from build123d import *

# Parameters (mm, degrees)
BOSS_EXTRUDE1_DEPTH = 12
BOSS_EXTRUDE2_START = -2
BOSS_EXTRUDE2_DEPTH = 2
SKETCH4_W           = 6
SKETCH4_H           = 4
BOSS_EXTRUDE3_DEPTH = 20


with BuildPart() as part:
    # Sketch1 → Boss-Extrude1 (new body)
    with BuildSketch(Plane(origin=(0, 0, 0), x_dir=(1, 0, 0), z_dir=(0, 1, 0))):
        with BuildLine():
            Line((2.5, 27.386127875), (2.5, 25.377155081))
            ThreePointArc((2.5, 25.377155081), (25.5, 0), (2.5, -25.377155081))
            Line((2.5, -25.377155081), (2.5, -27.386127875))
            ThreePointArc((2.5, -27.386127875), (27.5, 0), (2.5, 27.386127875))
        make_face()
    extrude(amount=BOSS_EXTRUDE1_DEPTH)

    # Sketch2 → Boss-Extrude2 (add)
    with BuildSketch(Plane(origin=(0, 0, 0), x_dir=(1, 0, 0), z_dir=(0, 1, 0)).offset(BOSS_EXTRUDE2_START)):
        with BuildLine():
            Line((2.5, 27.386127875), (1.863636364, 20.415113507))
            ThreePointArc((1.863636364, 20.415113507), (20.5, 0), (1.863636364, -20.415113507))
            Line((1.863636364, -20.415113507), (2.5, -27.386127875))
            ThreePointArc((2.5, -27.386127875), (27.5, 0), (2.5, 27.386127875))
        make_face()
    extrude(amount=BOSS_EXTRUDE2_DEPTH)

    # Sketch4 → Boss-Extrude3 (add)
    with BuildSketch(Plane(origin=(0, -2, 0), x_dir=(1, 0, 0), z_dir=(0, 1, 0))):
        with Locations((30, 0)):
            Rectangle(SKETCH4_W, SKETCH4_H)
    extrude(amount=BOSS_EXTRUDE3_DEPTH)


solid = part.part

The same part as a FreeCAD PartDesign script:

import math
import FreeCAD as App
import Part
import Sketcher

doc = App.newDocument("Part")
body = doc.addObject("PartDesign::Body", "Body")

# Sketch on XZ plane
sketch1 = body.newObject("Sketcher::SketchObject", "Sketch")
sketch1.AttachmentSupport = (doc.getObject("XZ_Plane"), [""])
sketch1.MapMode = "FlatFace"
sketch1.addGeometry(Part.LineSegment(App.Vector(2.5, -27.4, 0), App.Vector(2.5, -25.4, 0)), False)
sketch1.addGeometry(Part.ArcOfCircle(Part.Circle(App.Vector(0, 0, 0), App.Vector(0, 0, 1), 25.5), math.radians(-84), math.radians(84)), False)
sketch1.addGeometry(Part.LineSegment(App.Vector(2.5, 25.4, 0), App.Vector(2.5, 27.4, 0)), False)
sketch1.addGeometry(Part.ArcOfCircle(Part.Circle(App.Vector(0, 0, 0), App.Vector(0, 0, 1), 27.5), math.radians(-85), math.radians(85)), False)
sketch1.addConstraint(Sketcher.Constraint("Coincident", 0, 2, 1, 1))
sketch1.addConstraint(Sketcher.Constraint("Coincident", 1, 2, 2, 1))
sketch1.addConstraint(Sketcher.Constraint("Coincident", 2, 2, 3, 2))
sketch1.addConstraint(Sketcher.Constraint("Coincident", 3, 1, 0, 1))
sketch1.addConstraint(Sketcher.Constraint("Vertical", 0))
sketch1.addConstraint(Sketcher.Constraint("Vertical", 2))
sketch1.addConstraint(Sketcher.Constraint("Coincident", 1, 3, -1, 1))
sketch1.addConstraint(Sketcher.Constraint("Coincident", 3, 3, -1, 1))
sketch1.addConstraint(Sketcher.Constraint("Vertical", 0, 2, 1, 2))
sketch1.addConstraint(Sketcher.Constraint("Radius", 1, 25.5))
sketch1.addConstraint(Sketcher.Constraint("Radius", 3, 27.5))
sketch1.addConstraint(Sketcher.Constraint("DistanceX", -1, 1, 0, 2, 2.5))
pad1 = body.newObject("PartDesign::Pad", "Pad")
pad1.Profile = sketch1
pad1.Length = 12
pad1.Reversed = True

# Sketch on XZ plane
sketch2 = body.newObject("Sketcher::SketchObject", "Sketch001")
sketch2.AttachmentSupport = (doc.getObject("XZ_Plane"), [""])
sketch2.MapMode = "FlatFace"
sketch2.AttachmentOffset = App.Placement(App.Vector(0, 0, 2), App.Rotation())
sketch2.addGeometry(Part.LineSegment(App.Vector(2, -27, 0), App.Vector(2, -20, 0)), False)
sketch2.addGeometry(Part.ArcOfCircle(Part.Circle(App.Vector(0, 0, 0), App.Vector(0, 0, 1), 20), math.radians(-85), math.radians(85)), False)
sketch2.addGeometry(Part.LineSegment(App.Vector(2, 20, 0), App.Vector(2, 27, 0)), False)
sketch2.addGeometry(Part.ArcOfCircle(Part.Circle(App.Vector(0, 0, 0), App.Vector(0, 0, 1), 28), math.radians(-85), math.radians(85)), False)
sketch2.addConstraint(Sketcher.Constraint("Coincident", 0, 2, 1, 1))
sketch2.addConstraint(Sketcher.Constraint("Coincident", 1, 2, 2, 1))
sketch2.addConstraint(Sketcher.Constraint("Coincident", 2, 2, 3, 2))
sketch2.addConstraint(Sketcher.Constraint("Coincident", 3, 1, 0, 1))
sketch2.addConstraint(Sketcher.Constraint("Coincident", 1, 3, -1, 1))
sketch2.addConstraint(Sketcher.Constraint("Coincident", 3, 3, -1, 1))
sketch2.addConstraint(Sketcher.Constraint("Vertical", 0, 2, 1, 2))
sketch2.addConstraint(Sketcher.Constraint("Vertical", 2, 2, 3, 1))
sketch2.addConstraint(Sketcher.Constraint("Radius", 1, 20.5))
sketch2.addConstraint(Sketcher.Constraint("Radius", 3, 27.5))
sketch2.addConstraint(Sketcher.Constraint("DistanceX", -1, 1, 2, 2, 2.5))
sketch2.addConstraint(Sketcher.Constraint("DistanceY", 0, 2, 2, 2, 47.801241))
pad2 = body.newObject("PartDesign::Pad", "Pad001")
pad2.Profile = sketch2
pad2.Length = 2
pad2.Reversed = True

# Sketch on XZ plane
sketch3 = body.newObject("Sketcher::SketchObject", "Sketch002")
sketch3.AttachmentSupport = (doc.getObject("XZ_Plane"), [""])
sketch3.MapMode = "FlatFace"
sketch3.AttachmentOffset = App.Placement(App.Vector(0, 0, 2), App.Rotation())
sketch3.addGeometry(Part.LineSegment(App.Vector(27, -2, 0), App.Vector(27, 2, 0)), False)
sketch3.addGeometry(Part.LineSegment(App.Vector(27, 2, 0), App.Vector(33, 2, 0)), False)
sketch3.addGeometry(Part.LineSegment(App.Vector(33, 2, 0), App.Vector(33, -2, 0)), False)
sketch3.addGeometry(Part.LineSegment(App.Vector(33, -2, 0), App.Vector(27, -2, 0)), False)
sketch3.addConstraint(Sketcher.Constraint("Coincident", 0, 2, 1, 1))
sketch3.addConstraint(Sketcher.Constraint("Coincident", 1, 2, 2, 1))
sketch3.addConstraint(Sketcher.Constraint("Coincident", 2, 2, 3, 1))
sketch3.addConstraint(Sketcher.Constraint("Coincident", 3, 2, 0, 1))
sketch3.addConstraint(Sketcher.Constraint("Vertical", 0))
sketch3.addConstraint(Sketcher.Constraint("Horizontal", 1))
sketch3.addConstraint(Sketcher.Constraint("Vertical", 2))
sketch3.addConstraint(Sketcher.Constraint("Horizontal", 3))
sketch3.addConstraint(Sketcher.Constraint("DistanceX", 1, 1, 1, 2, 6.0))
sketch3.addConstraint(Sketcher.Constraint("DistanceY", 0, 1, 0, 2, 4.0))
sketch3.addConstraint(Sketcher.Constraint("DistanceX", -1, 1, 0, 2, 27.0))
sketch3.addConstraint(Sketcher.Constraint("DistanceY", -1, 1, 0, 2, 2.0))
pad3 = body.newObject("PartDesign::Pad", "Pad002")
pad3.Profile = sketch3
pad3.Length = 20
pad3.Reversed = True

doc.recompute()
